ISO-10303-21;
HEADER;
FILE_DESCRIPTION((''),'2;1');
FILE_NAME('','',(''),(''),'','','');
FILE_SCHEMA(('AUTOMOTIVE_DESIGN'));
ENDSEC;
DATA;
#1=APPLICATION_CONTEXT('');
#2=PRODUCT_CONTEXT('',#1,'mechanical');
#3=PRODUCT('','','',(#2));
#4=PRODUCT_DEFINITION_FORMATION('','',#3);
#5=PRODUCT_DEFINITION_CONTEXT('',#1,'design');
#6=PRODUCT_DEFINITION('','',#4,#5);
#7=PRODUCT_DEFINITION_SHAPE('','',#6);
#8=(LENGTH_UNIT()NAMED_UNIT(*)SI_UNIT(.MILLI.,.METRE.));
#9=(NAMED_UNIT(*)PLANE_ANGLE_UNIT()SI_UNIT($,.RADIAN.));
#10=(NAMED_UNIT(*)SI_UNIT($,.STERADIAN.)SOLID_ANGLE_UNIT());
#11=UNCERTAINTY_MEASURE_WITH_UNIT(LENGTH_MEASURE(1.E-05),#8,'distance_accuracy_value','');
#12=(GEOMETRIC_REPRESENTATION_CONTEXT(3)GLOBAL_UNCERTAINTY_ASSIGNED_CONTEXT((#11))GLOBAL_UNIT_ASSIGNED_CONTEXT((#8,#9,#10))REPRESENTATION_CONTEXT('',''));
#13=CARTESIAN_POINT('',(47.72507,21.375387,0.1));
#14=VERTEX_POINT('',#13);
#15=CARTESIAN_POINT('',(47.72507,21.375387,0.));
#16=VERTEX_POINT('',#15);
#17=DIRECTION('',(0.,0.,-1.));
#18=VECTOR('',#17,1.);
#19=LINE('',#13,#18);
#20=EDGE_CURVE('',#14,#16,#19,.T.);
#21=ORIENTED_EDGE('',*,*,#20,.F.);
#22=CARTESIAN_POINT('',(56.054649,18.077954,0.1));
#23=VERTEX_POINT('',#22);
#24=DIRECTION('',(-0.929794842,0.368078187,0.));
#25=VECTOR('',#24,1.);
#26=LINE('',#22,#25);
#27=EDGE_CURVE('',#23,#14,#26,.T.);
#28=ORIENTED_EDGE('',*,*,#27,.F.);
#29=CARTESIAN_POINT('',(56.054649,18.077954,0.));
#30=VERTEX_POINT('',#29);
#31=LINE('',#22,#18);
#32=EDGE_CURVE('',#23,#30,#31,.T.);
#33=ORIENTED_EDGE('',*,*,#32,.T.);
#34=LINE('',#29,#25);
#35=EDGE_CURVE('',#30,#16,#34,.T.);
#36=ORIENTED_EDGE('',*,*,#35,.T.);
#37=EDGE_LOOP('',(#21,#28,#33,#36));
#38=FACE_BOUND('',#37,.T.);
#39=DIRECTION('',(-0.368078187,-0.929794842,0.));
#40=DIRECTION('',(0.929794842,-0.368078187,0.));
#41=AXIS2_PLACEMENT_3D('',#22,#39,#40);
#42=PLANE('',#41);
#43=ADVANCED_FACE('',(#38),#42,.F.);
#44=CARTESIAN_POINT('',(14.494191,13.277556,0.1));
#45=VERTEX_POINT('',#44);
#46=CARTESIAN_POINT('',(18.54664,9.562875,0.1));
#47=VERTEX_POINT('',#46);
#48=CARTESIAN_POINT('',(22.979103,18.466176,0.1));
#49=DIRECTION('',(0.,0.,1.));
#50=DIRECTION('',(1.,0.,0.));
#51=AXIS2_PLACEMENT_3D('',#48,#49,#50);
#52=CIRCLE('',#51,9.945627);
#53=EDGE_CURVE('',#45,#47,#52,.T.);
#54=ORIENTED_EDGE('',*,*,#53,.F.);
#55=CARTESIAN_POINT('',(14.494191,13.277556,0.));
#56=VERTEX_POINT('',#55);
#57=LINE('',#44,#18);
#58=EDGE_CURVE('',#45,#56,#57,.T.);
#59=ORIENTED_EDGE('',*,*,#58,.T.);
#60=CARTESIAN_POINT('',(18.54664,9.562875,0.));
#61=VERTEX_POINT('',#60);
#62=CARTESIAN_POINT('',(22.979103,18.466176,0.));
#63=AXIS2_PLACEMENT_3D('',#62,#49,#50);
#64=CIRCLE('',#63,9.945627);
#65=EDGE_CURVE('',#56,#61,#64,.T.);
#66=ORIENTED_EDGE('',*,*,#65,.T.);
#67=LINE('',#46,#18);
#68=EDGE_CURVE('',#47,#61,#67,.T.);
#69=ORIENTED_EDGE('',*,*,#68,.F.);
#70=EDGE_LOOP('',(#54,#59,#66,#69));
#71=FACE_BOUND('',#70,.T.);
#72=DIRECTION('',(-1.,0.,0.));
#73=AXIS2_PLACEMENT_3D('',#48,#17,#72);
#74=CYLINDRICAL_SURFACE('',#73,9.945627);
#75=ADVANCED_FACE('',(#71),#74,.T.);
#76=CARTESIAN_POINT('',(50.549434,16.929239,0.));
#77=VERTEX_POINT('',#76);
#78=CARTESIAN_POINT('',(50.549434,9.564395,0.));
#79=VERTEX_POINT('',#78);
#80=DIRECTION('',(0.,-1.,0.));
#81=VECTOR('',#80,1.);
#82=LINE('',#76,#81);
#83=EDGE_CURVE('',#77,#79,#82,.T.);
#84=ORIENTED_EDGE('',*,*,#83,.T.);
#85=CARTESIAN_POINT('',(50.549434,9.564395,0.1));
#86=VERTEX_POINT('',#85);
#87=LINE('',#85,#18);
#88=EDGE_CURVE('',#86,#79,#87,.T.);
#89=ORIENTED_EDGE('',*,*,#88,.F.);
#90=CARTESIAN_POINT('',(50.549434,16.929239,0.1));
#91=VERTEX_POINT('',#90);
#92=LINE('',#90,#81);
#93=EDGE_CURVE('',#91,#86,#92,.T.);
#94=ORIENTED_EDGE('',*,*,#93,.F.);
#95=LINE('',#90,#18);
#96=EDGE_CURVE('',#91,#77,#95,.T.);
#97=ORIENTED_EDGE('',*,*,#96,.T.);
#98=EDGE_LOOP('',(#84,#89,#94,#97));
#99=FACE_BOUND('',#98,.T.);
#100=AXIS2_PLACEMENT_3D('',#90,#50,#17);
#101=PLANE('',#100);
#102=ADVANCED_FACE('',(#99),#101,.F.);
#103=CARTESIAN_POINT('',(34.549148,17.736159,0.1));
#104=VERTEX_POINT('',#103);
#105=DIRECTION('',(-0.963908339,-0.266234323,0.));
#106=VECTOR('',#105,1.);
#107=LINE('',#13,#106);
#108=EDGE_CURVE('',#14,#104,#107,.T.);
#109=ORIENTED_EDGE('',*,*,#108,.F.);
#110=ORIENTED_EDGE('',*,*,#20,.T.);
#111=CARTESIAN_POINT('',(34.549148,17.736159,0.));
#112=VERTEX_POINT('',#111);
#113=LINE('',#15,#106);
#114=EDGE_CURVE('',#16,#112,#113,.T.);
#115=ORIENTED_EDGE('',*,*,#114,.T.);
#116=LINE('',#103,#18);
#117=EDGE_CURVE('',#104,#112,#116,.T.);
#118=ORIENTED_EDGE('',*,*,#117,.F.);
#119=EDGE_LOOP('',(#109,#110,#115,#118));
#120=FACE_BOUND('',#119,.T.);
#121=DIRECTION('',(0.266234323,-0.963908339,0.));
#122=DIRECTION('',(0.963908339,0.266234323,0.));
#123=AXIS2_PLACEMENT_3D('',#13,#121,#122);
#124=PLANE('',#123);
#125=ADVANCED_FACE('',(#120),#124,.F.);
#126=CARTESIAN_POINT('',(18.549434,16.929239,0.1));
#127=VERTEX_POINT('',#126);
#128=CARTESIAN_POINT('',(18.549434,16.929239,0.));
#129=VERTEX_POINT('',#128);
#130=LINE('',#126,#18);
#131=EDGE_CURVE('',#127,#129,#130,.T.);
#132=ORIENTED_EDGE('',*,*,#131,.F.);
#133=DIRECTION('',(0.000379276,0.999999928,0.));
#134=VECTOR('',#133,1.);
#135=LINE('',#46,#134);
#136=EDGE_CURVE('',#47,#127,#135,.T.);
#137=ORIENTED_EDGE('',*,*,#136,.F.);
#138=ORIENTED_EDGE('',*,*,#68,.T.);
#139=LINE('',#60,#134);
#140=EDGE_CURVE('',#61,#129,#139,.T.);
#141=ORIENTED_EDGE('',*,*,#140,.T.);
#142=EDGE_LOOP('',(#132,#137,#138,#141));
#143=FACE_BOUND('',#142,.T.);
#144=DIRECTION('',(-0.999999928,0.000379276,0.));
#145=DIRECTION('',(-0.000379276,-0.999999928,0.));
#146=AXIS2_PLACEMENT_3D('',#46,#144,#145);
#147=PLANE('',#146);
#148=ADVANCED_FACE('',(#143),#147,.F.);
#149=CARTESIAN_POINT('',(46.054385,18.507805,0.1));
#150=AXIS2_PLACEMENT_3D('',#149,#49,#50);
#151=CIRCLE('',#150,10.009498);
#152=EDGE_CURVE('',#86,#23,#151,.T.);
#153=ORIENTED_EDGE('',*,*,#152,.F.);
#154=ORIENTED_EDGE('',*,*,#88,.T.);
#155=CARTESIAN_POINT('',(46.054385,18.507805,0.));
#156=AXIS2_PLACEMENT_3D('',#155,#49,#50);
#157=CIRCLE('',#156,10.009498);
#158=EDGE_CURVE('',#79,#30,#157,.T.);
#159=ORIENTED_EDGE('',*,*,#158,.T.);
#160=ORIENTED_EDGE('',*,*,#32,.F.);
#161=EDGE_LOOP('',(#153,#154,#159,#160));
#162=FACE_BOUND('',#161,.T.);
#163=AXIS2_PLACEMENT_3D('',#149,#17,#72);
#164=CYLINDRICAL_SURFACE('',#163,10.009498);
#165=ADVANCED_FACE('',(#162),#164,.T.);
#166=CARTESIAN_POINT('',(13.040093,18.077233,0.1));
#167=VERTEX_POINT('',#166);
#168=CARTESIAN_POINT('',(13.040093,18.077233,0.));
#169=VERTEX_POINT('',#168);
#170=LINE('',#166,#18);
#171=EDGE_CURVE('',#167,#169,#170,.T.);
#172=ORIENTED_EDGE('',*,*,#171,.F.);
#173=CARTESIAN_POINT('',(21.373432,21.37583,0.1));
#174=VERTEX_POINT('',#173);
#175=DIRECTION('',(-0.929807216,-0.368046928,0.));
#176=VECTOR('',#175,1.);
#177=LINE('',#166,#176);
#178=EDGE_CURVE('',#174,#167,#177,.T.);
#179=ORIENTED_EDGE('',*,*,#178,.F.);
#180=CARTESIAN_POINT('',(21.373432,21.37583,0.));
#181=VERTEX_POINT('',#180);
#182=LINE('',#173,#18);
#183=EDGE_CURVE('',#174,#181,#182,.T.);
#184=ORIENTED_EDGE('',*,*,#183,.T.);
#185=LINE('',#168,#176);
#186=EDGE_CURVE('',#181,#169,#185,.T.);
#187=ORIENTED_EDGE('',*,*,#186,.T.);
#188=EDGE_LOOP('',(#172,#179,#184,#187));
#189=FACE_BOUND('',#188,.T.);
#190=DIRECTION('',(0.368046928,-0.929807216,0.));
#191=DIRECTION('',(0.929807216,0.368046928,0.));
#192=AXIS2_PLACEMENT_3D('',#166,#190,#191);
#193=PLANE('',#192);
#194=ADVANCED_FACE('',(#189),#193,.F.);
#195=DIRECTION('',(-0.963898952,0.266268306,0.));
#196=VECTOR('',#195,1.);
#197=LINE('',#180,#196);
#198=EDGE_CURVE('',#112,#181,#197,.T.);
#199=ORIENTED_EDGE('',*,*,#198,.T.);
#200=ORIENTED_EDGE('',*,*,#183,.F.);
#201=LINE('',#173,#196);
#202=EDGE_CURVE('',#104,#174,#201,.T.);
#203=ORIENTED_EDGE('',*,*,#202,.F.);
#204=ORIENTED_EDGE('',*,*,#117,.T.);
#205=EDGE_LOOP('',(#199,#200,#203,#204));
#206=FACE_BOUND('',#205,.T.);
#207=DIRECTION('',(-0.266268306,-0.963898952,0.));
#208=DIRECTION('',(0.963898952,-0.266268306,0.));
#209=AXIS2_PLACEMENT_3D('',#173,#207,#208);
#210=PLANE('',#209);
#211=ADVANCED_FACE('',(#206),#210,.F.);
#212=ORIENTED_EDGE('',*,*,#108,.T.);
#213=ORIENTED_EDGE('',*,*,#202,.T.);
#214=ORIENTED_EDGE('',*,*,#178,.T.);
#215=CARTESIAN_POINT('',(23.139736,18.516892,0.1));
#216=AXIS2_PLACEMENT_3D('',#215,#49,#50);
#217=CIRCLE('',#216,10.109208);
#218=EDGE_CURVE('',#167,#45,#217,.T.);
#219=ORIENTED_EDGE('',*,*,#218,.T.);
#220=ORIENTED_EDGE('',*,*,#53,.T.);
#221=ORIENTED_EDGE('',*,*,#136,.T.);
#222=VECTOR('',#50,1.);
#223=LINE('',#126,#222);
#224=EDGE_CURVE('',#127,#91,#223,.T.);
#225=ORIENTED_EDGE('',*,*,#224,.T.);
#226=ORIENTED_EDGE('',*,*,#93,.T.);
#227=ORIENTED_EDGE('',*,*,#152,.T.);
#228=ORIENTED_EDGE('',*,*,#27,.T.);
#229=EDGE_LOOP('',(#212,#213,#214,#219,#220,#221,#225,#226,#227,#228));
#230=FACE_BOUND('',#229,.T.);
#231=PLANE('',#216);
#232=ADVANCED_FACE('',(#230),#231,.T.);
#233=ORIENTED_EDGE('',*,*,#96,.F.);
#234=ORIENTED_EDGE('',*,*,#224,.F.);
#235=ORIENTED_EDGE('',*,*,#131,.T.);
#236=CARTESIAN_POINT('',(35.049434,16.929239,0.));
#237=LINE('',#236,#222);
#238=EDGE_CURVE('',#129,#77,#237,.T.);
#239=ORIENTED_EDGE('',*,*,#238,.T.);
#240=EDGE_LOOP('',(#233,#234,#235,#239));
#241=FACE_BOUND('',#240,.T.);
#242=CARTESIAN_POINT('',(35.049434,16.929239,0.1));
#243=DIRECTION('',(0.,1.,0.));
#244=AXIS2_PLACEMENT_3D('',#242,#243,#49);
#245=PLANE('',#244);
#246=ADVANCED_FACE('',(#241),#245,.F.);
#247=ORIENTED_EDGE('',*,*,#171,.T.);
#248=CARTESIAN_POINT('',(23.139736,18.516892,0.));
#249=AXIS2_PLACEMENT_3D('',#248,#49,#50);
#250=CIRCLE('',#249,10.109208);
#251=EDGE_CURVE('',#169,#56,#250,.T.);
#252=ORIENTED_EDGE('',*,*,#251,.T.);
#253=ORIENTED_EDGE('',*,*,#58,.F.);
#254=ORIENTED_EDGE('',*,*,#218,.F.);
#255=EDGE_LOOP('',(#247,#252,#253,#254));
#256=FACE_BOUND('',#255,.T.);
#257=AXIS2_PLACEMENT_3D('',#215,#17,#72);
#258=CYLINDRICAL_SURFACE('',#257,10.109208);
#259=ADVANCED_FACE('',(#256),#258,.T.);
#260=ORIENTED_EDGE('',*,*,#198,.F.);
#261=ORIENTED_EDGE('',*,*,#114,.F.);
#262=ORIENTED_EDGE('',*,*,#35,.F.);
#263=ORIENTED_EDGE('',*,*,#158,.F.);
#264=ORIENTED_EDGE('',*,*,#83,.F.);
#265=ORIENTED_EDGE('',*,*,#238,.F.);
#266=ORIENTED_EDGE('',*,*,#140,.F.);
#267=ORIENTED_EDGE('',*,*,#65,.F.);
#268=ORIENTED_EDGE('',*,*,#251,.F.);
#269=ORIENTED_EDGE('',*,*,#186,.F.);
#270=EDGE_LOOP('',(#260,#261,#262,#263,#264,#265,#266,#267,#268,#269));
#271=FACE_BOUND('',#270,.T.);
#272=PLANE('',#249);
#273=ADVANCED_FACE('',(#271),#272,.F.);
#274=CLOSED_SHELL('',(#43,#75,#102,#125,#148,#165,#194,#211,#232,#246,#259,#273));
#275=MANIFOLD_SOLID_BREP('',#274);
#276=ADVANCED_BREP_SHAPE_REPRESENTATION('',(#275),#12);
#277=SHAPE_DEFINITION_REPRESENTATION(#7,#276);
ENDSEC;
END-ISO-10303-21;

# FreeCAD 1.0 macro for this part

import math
import FreeCAD as App
import Part
import Sketcher

doc = App.newDocument("Part")
params = doc.addObject("Spreadsheet::Sheet", "Params")
for row, (alias, value) in enumerate([
    ("sketch1_width", "32 mm"),
    ("pad1_length", "0.1 mm"),
], start=1):
    params.set(f"A{row}", alias)
    params.set(f"B{row}", "=" + value)
    params.setAlias(f"B{row}", alias)

body = doc.addObject("PartDesign::Body", "Body")

sketch1 = body.newObject("Sketcher::SketchObject", "Sketch")
sketch1.AttachmentSupport = (doc.getObject("XY_Plane"), [""])
sketch1.MapMode = "FlatFace"
sketch1.addGeometry([
    Part.LineSegment(App.Vector(18.549434, 16.929239, 0), App.Vector(50.549434, 16.929239, 0)),
    Part.LineSegment(App.Vector(50.549434, 16.929239, 0), App.Vector(50.549434, 9.564395, 0)),
    Part.ArcOfCircle(Part.Circle(App.Vector(46.054385, 18.507805, 0), App.Vector(0, 0, 1), 10.009498), math.radians(-63.315432), math.radians(-31.227876)),
    Part.ArcOfCircle(Part.Circle(App.Vector(46.054385, 18.507805, 0), App.Vector(0, 0, 1), 10.009498), math.radians(-31.227876), math.radians(-2.461283)),
    Part.LineSegment(App.Vector(56.054649, 18.077954, 0), App.Vector(47.72507, 21.375387, 0)),
    Part.LineSegment(App.Vector(47.72507, 21.375387, 0), App.Vector(34.549148, 17.736159, 0)),
    Part.LineSegment(App.Vector(34.549148, 17.736159, 0), App.Vector(21.373432, 21.37583, 0)),
    Part.LineSegment(App.Vector(21.373432, 21.37583, 0), App.Vector(13.040093, 18.077233, 0)),
    Part.ArcOfCircle(Part.Circle(App.Vector(23.139736, 18.516892, 0), App.Vector(0, 0, 1), 10.109208), math.radians(-177.507363), math.radians(-148.783477)),
    Part.ArcOfCircle(Part.Circle(App.Vector(22.979103, 18.466176, 0), App.Vector(0, 0, 1), 9.945627), math.radians(-148.55374), math.radians(-116.466183)),
    Part.LineSegment(App.Vector(18.54664, 9.562875, 0), App.Vector(18.549434, 16.929239, 0)),
], False)
sketch1.addConstraint([
    Sketcher.Constraint("Coincident", 0, 2, 1, 1),
    Sketcher.Constraint("Coincident", 1, 2, 2, 1),
    Sketcher.Constraint("Tangent", 2, 2, 3, 1),
    Sketcher.Constraint("Coincident", 3, 2, 4, 1),
    Sketcher.Constraint("Coincident", 4, 2, 5, 1),
    Sketcher.Constraint("Coincident", 5, 2, 6, 1),
    Sketcher.Constraint("Coincident", 6, 2, 7, 1),
    Sketcher.Constraint("Coincident", 7, 2, 8, 1),
    Sketcher.Constraint("Coincident", 8, 2, 9, 1),
    Sketcher.Constraint("Coincident", 9, 2, 10, 1),
    Sketcher.Constraint("Coincident", 10, 2, 0, 1),
    Sketcher.Constraint("Horizontal", 0),
    Sketcher.Constraint("Vertical", 1),
    Sketcher.Constraint("Equal", 2, 3),
    Sketcher.Constraint("DistanceX", 0, 1, 0, 2, 32.0),
    Sketcher.Constraint("Radius", 2, 10.009498),
    Sketcher.Constraint("Radius", 8, 10.109208),
    Sketcher.Constraint("Radius", 9, 9.945627),
    Sketcher.Constraint("DistanceX", 10, 2, 6, 2, 2.823998),
    Sketcher.Constraint("DistanceX", 8, 3, 0, 2, 27.409698),
    Sketcher.Constraint("DistanceX", 7, 2, 8, 2, 1.454098),
    Sketcher.Constraint("DistanceY", 9, 2, 9, 3, 8.903301),
    Sketcher.Constraint("Distance", 5, 13.669269),
    Sketcher.Constraint("DistanceY", 1, 2, 1, 1, 7.364844),
    Sketcher.Constraint("DistanceY", -1, 1, 0, 2, 16.929239),
    Sketcher.Constraint("DistanceX", -1, 1, 2, 2, 54.613628),
    Sketcher.Constraint("DistanceY", -1, 1, 2, 2, 13.31845),
    Sketcher.Constraint("DistanceX", -1, 1, 3, 2, 56.054649),
    Sketcher.Constraint("DistanceX", -1, 1, 4, 2, 47.72507),
    Sketcher.Constraint("DistanceX", -1, 1, 5, 2, 34.549148),
    Sketcher.Constraint("DistanceY", -1, 1, 5, 2, 17.736159),
    Sketcher.Constraint("DistanceY", -1, 1, 6, 2, 21.37583),
    Sketcher.Constraint("DistanceX", -1, 1, 8, 2, 14.494191),
    Sketcher.Constraint("DistanceX", -1, 1, 9, 2, 18.54664),
    Sketcher.Constraint("DistanceX", 8, 3, 2, 3, 22.914649),
    Sketcher.Constraint("DistanceY", 9, 3, 2, 3, 0.041629),
])
sketch1.setExpression("Constraints[14]", "Params.sketch1_width")
pad1 = body.newObject("PartDesign::Pad", "Pad")
pad1.Profile = sketch1
pad1.setExpression("Length", "Params.pad1_length")

doc.recompute()
